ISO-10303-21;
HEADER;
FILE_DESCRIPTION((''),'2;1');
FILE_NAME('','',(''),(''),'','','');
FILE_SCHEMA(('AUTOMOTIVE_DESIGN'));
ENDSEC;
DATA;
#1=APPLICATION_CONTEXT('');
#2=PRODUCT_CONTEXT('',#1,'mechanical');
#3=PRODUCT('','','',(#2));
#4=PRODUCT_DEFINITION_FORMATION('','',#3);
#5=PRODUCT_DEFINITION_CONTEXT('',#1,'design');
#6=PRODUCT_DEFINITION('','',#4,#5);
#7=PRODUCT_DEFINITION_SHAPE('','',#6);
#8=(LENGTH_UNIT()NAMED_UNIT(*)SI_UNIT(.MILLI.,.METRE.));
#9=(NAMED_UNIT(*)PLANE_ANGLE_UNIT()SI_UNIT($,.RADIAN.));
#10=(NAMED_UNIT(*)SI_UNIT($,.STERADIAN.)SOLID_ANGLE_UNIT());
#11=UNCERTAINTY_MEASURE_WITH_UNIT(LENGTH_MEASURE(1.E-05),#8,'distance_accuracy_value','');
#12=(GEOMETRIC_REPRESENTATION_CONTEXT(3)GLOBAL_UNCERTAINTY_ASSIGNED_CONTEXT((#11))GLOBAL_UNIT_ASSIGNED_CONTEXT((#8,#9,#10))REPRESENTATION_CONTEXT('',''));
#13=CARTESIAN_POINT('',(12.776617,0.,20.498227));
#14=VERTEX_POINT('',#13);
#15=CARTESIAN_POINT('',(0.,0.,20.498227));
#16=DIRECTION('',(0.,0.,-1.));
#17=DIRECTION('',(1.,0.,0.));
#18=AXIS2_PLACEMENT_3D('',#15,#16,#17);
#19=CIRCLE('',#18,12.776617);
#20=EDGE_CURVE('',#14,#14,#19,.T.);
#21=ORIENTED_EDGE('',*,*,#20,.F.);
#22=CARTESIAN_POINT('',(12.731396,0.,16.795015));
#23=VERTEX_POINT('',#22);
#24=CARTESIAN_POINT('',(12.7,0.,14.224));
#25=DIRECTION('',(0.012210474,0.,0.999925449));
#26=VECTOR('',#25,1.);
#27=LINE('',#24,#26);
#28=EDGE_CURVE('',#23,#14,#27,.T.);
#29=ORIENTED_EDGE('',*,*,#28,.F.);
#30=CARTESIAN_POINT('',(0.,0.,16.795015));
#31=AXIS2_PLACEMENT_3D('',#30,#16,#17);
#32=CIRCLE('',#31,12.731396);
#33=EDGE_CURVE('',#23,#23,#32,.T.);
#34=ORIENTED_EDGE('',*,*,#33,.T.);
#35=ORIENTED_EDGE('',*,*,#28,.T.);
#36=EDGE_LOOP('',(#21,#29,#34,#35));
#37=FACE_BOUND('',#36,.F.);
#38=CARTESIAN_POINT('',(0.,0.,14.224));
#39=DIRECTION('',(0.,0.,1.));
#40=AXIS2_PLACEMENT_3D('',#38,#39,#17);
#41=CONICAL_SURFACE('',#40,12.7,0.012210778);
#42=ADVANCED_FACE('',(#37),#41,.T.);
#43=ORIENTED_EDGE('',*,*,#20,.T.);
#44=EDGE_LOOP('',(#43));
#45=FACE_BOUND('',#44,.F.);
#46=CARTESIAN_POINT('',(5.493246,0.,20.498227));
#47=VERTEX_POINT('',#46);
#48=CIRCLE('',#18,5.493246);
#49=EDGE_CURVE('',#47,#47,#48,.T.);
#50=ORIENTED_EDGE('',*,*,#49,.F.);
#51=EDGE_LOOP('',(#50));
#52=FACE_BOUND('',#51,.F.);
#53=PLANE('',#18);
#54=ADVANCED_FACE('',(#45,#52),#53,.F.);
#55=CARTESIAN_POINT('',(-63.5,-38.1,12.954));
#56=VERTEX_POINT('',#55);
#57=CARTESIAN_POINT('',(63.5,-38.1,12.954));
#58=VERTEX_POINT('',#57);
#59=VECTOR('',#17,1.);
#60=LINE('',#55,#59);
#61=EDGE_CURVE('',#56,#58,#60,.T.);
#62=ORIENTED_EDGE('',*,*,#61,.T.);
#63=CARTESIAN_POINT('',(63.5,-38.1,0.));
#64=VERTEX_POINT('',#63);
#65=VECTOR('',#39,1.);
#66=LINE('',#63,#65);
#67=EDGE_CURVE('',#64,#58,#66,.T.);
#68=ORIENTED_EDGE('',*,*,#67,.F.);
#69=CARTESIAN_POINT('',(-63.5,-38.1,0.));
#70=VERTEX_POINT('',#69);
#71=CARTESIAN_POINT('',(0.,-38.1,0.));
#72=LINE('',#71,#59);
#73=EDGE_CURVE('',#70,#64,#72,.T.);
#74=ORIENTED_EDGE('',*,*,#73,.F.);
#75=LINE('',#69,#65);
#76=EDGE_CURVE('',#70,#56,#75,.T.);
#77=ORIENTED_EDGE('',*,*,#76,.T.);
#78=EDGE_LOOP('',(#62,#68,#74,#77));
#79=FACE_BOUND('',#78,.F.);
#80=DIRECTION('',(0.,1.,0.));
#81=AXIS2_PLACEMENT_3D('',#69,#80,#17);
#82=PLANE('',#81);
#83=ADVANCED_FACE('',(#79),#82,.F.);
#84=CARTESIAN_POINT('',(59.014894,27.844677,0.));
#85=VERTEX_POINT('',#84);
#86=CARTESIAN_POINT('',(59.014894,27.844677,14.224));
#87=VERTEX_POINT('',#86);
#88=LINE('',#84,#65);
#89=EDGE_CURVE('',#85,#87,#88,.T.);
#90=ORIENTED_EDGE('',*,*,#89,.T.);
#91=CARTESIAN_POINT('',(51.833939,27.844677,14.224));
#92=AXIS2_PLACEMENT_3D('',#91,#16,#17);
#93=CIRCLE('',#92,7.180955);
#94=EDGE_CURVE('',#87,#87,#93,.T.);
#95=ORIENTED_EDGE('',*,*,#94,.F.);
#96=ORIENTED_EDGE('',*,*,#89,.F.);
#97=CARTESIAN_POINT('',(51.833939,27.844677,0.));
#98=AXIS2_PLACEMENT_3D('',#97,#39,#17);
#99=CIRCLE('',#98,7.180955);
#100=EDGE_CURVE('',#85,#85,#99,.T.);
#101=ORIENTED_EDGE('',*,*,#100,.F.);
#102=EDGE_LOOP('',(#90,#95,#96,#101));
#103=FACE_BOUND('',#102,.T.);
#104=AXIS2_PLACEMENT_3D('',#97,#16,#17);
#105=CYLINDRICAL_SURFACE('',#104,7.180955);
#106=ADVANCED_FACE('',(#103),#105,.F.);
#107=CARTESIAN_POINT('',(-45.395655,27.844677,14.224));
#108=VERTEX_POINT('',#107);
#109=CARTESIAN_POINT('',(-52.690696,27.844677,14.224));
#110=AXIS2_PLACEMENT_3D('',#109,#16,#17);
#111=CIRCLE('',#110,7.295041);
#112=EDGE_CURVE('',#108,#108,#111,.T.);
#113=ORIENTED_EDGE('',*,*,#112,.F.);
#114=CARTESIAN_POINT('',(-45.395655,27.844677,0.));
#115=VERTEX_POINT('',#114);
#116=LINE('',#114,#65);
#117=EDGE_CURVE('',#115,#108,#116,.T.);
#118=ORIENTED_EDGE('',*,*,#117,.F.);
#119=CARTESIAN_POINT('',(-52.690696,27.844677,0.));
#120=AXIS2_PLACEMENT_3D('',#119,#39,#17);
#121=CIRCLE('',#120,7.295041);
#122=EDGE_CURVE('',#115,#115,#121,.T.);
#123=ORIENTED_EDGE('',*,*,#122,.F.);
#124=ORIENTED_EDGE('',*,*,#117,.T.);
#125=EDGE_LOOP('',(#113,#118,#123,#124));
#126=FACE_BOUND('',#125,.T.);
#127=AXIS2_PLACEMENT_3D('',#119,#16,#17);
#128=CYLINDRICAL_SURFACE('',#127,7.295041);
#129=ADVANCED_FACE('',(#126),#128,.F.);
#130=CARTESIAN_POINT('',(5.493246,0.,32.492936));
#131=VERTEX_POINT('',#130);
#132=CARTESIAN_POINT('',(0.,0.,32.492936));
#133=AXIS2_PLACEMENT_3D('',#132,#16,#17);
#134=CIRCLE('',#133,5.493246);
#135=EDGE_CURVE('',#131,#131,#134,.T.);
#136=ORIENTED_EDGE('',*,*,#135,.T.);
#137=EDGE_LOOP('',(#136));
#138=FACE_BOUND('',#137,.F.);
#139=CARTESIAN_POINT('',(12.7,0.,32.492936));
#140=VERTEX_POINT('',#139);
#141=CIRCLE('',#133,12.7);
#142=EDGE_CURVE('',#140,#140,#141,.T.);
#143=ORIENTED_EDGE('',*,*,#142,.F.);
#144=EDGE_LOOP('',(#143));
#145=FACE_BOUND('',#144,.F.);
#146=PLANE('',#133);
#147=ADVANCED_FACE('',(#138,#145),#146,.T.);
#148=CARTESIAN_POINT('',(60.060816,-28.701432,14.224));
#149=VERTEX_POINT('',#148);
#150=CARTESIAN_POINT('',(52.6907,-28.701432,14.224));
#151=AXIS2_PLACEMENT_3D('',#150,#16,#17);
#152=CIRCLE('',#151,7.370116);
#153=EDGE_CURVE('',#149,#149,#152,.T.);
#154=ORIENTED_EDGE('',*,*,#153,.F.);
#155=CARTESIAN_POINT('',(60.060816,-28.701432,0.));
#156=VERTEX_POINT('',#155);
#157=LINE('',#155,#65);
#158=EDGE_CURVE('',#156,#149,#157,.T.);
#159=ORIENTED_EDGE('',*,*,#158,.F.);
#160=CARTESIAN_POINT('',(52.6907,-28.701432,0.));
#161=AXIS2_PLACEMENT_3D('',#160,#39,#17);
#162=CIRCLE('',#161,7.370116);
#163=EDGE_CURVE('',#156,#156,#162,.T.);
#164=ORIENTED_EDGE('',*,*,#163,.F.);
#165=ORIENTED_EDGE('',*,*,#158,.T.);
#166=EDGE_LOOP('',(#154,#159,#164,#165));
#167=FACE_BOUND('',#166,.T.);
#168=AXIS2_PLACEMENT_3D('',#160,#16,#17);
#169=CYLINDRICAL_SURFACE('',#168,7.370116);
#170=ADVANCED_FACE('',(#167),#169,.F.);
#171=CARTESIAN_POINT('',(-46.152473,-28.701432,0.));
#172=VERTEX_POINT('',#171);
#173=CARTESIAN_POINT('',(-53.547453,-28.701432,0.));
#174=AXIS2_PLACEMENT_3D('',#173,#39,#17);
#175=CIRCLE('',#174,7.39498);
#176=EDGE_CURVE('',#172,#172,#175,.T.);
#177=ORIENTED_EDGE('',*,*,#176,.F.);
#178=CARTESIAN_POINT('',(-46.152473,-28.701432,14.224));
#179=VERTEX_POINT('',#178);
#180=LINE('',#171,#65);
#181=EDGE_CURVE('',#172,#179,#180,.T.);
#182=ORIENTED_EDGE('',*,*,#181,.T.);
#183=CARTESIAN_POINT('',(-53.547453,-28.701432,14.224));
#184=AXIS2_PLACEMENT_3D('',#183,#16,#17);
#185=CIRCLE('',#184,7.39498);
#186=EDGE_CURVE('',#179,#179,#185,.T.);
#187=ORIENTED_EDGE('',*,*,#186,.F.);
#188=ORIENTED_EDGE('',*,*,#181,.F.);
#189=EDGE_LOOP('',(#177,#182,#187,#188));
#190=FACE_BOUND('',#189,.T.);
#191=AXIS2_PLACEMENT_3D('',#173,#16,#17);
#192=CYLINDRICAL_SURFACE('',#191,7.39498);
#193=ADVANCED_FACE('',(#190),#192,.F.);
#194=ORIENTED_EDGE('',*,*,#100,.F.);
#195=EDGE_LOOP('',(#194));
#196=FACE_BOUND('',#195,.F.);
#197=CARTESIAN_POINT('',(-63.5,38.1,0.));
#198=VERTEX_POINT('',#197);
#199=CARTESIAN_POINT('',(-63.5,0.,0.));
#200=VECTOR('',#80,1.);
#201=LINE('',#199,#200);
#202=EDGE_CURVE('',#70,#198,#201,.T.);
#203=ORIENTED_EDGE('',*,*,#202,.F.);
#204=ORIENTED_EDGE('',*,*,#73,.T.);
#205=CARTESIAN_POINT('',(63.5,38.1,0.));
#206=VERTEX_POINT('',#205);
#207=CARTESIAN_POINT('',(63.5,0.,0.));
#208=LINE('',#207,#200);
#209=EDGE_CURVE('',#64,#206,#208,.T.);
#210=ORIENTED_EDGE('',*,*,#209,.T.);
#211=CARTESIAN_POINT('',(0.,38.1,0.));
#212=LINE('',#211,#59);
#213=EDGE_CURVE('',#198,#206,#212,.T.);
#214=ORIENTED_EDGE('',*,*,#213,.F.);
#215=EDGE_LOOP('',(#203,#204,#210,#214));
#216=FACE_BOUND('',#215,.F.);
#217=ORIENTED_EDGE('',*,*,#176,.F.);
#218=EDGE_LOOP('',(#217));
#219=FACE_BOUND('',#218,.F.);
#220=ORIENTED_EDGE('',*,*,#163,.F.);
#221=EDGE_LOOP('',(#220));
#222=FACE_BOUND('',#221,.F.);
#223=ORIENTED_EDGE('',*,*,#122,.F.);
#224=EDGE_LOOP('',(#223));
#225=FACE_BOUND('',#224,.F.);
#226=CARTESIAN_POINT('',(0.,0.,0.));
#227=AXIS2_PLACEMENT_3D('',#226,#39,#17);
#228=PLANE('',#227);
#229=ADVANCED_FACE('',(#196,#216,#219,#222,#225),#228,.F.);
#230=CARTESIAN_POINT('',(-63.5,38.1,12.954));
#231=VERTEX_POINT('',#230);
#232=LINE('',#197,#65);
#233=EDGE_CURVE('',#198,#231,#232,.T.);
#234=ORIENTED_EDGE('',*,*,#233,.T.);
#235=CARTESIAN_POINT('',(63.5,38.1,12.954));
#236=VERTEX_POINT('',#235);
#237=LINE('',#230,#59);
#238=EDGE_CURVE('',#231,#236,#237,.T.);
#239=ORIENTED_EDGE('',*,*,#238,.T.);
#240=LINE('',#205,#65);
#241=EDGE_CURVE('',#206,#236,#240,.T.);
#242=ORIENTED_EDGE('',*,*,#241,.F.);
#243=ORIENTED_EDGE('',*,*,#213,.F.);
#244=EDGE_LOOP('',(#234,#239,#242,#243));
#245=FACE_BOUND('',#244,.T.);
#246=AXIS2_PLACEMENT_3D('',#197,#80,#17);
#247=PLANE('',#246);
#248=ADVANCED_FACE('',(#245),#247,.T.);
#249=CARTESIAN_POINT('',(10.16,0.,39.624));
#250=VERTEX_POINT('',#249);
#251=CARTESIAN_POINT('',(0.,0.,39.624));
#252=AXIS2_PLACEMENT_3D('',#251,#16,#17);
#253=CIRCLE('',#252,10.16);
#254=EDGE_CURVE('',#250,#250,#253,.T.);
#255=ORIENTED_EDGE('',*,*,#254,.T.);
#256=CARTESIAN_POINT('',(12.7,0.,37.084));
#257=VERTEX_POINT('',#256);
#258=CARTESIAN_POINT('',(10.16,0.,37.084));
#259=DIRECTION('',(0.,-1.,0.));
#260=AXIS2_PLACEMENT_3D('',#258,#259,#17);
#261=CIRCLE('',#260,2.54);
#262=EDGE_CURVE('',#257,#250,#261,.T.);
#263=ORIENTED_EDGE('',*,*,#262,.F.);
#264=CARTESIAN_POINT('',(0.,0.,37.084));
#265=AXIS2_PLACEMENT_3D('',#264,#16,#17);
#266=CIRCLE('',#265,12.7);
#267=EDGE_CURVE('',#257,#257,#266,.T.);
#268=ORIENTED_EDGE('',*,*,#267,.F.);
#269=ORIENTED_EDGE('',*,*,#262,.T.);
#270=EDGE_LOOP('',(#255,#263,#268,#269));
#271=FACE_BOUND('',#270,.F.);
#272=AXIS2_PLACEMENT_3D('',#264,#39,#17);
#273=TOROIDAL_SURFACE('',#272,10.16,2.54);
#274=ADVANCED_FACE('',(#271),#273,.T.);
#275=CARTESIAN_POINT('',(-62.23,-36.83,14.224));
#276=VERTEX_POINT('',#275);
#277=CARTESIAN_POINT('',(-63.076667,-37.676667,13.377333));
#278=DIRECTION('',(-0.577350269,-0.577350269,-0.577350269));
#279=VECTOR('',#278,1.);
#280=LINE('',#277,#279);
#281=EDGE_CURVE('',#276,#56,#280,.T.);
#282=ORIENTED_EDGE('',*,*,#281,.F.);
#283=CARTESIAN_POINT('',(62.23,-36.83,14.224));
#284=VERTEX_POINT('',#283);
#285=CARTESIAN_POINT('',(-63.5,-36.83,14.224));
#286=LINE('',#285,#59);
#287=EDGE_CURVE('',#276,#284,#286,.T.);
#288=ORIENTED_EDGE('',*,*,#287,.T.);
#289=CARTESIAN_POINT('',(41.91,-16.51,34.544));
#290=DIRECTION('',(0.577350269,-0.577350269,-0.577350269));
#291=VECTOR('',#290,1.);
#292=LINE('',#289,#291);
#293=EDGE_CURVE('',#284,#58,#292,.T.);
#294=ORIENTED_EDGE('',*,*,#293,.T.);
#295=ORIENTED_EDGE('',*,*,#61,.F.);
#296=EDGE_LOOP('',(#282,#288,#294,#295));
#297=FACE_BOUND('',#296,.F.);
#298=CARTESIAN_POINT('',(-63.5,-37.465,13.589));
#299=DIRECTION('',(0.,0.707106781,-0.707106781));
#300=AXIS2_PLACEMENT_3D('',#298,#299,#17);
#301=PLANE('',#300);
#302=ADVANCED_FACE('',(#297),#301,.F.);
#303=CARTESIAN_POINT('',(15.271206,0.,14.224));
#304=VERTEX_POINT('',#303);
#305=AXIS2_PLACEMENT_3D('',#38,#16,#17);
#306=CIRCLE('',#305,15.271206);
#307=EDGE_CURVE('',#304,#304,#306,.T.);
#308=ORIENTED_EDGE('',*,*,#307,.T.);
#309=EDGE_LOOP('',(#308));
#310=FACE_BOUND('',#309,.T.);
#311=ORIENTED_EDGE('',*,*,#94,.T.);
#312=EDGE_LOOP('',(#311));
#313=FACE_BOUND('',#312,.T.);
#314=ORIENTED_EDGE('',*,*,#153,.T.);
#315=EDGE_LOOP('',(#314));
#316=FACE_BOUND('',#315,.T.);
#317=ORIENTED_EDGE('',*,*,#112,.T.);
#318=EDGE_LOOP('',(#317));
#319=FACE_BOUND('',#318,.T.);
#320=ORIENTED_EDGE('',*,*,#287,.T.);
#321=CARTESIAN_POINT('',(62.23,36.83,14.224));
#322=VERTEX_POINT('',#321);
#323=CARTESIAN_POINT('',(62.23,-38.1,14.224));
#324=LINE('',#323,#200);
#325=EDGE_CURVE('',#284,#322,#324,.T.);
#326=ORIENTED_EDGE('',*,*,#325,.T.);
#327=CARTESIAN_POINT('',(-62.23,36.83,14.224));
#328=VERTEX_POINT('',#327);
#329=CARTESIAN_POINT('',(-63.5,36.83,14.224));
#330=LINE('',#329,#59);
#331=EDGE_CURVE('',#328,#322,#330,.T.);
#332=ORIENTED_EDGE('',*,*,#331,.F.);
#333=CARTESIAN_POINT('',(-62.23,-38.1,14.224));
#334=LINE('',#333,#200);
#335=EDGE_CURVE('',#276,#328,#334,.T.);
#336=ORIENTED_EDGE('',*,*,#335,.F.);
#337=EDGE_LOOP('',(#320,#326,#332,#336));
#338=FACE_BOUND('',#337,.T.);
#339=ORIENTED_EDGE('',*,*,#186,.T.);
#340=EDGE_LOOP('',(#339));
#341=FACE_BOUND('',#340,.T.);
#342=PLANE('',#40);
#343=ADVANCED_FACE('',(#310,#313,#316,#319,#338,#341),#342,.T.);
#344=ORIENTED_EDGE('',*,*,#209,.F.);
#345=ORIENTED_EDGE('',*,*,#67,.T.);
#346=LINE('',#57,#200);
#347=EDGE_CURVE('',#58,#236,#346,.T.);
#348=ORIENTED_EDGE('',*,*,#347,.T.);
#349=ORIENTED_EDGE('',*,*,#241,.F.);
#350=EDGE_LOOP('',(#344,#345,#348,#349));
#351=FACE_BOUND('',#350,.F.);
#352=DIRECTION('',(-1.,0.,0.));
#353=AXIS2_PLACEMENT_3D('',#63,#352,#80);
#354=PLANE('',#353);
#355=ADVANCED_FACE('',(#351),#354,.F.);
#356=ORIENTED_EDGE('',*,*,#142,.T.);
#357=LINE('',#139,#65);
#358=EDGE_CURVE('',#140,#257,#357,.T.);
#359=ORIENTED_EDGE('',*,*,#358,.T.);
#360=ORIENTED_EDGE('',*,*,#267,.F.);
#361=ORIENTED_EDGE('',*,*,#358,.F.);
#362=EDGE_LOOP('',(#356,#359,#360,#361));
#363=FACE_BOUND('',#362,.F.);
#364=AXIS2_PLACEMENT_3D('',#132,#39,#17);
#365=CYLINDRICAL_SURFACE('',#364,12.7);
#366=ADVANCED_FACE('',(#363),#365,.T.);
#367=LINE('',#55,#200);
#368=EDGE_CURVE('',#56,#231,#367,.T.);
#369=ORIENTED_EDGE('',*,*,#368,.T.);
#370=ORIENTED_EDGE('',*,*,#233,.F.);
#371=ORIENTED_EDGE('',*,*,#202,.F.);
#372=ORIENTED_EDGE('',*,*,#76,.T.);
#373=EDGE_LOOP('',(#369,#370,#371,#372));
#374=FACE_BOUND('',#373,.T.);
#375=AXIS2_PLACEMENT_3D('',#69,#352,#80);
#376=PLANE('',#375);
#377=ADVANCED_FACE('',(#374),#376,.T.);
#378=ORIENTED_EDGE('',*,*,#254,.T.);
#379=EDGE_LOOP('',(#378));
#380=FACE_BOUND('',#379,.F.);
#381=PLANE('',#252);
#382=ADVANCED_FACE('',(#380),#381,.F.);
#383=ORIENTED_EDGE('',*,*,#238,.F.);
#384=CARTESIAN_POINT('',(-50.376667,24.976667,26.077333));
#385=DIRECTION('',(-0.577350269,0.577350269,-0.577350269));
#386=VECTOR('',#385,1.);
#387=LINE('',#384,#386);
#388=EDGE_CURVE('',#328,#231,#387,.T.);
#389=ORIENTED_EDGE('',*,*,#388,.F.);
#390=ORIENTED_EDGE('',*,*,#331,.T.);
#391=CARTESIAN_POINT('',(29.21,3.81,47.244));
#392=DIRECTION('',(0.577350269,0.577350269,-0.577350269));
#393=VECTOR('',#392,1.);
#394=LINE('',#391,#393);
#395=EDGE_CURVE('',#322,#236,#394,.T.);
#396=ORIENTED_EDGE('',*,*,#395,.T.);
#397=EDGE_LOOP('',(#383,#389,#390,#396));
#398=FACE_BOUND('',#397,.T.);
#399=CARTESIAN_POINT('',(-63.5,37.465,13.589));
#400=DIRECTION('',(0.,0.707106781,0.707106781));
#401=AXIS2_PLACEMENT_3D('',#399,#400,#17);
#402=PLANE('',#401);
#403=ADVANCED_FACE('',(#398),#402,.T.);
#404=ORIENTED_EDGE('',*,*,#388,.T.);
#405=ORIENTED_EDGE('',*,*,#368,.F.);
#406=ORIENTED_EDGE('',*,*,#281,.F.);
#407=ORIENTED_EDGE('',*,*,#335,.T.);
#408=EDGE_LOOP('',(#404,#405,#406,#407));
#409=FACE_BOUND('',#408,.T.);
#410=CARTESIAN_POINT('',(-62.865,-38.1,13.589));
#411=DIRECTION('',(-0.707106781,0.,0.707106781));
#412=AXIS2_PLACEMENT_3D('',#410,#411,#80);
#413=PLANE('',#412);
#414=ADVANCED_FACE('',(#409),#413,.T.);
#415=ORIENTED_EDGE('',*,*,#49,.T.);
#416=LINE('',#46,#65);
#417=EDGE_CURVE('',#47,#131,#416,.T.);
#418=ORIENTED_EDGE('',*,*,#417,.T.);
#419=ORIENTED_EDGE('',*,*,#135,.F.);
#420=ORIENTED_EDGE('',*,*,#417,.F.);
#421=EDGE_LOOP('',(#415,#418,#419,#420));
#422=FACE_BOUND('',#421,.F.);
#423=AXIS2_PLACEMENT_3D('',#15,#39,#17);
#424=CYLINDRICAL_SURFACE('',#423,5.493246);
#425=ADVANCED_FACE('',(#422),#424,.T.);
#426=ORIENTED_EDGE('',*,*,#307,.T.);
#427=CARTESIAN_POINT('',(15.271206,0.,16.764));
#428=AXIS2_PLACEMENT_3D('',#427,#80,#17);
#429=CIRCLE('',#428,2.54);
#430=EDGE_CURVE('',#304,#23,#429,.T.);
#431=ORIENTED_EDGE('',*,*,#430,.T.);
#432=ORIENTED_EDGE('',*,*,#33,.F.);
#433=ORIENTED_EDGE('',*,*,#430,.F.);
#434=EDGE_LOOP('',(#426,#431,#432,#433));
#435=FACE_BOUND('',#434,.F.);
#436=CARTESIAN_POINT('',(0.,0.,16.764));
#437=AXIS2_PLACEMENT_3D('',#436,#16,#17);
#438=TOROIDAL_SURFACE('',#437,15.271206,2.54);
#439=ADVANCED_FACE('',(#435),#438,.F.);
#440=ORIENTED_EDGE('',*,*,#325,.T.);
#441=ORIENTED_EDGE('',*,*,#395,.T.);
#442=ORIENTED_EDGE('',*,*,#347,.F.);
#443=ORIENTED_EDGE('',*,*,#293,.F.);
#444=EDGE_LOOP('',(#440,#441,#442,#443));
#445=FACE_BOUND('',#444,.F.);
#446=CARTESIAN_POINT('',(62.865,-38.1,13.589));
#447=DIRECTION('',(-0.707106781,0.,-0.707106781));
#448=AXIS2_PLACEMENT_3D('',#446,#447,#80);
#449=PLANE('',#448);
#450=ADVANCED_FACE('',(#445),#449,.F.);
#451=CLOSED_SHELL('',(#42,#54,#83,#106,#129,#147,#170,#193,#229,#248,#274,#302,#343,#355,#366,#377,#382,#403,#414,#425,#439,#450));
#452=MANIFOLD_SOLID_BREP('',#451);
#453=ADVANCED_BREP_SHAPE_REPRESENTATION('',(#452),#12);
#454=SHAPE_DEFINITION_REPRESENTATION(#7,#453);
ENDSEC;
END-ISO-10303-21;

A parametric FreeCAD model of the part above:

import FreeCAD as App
import Part
import Sketcher

V = App.Vector
Q = App.Units.Quantity


def edges_at(feature, points):
    """Names of the edges that pass closest to the given points."""
    edges = feature.Shape.Edges
    near = lambda p: min(range(len(edges)), key=lambda i: edges[i].distToShape(Part.Vertex(*p))[0])
    return sorted({f"Edge{near(p) + 1}" for p in points})

doc = App.newDocument("Part")
body = doc.addObject("PartDesign::Body", "Body")

# Sketch on XY plane
sketch1 = body.newObject("Sketcher::SketchObject", "Sketch")
sketch1.AttachmentSupport = (doc.getObject("XY_Plane"), [""])
sketch1.MapMode = "FlatFace"
sketch1.addGeometry([
    Part.LineSegment(V(-63.5, 38.1, 0), V(-63.5, -38.1, 0)),
    Part.LineSegment(V(-63.5, -38.1, 0), V(63.5, -38.1, 0)),
    Part.LineSegment(V(63.5, -38.1, 0), V(63.5, 38.1, 0)),
    Part.LineSegment(V(63.5, 38.1, 0), V(-63.5, 38.1, 0)),
], False)
sketch1.addConstraint([
    Sketcher.Constraint("Coincident", 0, 2, 1, 1),
    Sketcher.Constraint("Coincident", 1, 2, 2, 1),
    Sketcher.Constraint("Coincident", 2, 2, 3, 1),
    Sketcher.Constraint("Coincident", 3, 2, 0, 1),
    Sketcher.Constraint("Vertical", 0),
    Sketcher.Constraint("Horizontal", 1),
    Sketcher.Constraint("Vertical", 2),
    Sketcher.Constraint("Horizontal", 3),
    Sketcher.Constraint("Symmetric", 0, 2, 2, 2, -1, 1),
    Sketcher.Constraint("DistanceX", 1, 1, 1, 2, Q("5 in")),
    Sketcher.Constraint("DistanceY", 0, 2, 0, 1, Q("3 in")),
])
pad1 = body.newObject("PartDesign::Pad", "Pad")
pad1.Profile = sketch1
pad1.Length = Q("0.56 in")

# Sketch on XY plane
sketch2 = body.newObject("Sketcher::SketchObject", "Sketch001")
sketch2.AttachmentSupport = (doc.getObject("XY_Plane"), [""])
sketch2.MapMode = "FlatFace"
sketch2.addGeometry([
    Part.Circle(V(-52.690696, 27.844677, 0), V(0, 0, 1), 7.295041),
    Part.Circle(V(51.833939, 27.844677, 0), V(0, 0, 1), 7.180955),
    Part.Circle(V(52.6907, -28.701432, 0), V(0, 0, 1), 7.370116),
    Part.Circle(V(-53.547453, -28.701432, 0), V(0, 0, 1), 7.39498),
], False)
sketch2.addConstraint([
    Sketcher.Constraint("Horizontal", 0, 3, 1, 3),
    Sketcher.Constraint("Horizontal", 2, 3, 3, 3),
    Sketcher.Constraint("Diameter", 1, 14.36191),
    Sketcher.Constraint("Diameter", 3, 14.78996),
    Sketcher.Constraint("Diameter", 0, 14.590082),
    Sketcher.Constraint("Diameter", 2, 14.740232),
    Sketcher.Constraint("DistanceX", -1, 1, 2, 3, 52.6907),
    Sketcher.Constraint("DistanceX", -1, 1, 1, 3, 51.833939),
    Sketcher.Constraint("DistanceY", 2, 3, 1, 3, 56.546109),
    Sketcher.Constraint("DistanceX", 0, 3, -1, 1, 52.690696),
    Sketcher.Constraint("DistanceY", -1, 1, 0, 3, 27.844677),
    Sketcher.Constraint("DistanceX", 3, 3, -1, 1, 53.547453),
])
pocket1 = body.newObject("PartDesign::Pocket", "Pocket")
pocket1.Profile = sketch2
pocket1.Length = Q("1.1 in")
pocket1.Reversed = True

# Sketch on XZ plane
sketch3 = body.newObject("Sketcher::SketchObject", "Sketch002")
sketch3.AttachmentSupport = (doc.getObject("XZ_Plane"), [""])
sketch3.MapMode = "FlatFace"
sketch3.addGeometry([
    Part.LineSegment(V(12.7, 39.624, 0), V(0, 39.624, 0)),  # 0
    Part.LineSegment(V(0, 39.624, 0), V(0, 14.224, 0)),  # 1
    Part.LineSegment(V(0, 14.224, 0), V(12.7, 14.224, 0)),  # 2
    Part.LineSegment(V(12.7, 14.224, 0), V(12.776617, 20.498227, 0)),  # 3
    Part.LineSegment(V(12.776617, 20.498227, 0), V(5.493246, 20.498227, 0)),  # 4
    Part.LineSegment(V(5.493246, 20.498227, 0), V(5.493246, 32.492936, 0)),  # 5
    Part.LineSegment(V(5.493246, 32.492936, 0), V(12.7, 32.492936, 0)),  # 6
    Part.LineSegment(V(12.7, 32.492936, 0), V(12.7, 39.624, 0)),  # 7
], False)
sketch3.addConstraint([
    Sketcher.Constraint("Coincident", 0, 2, 1, 1),
    Sketcher.Constraint("Coincident", 1, 2, 2, 1),
    Sketcher.Constraint("Coincident", 2, 2, 3, 1),
    Sketcher.Constraint("Coincident", 3, 2, 4, 1),
    Sketcher.Constraint("Coincident", 4, 2, 5, 1),
    Sketcher.Constraint("Coincident", 5, 2, 6, 1),
    Sketcher.Constraint("Coincident", 6, 2, 7, 1),
    Sketcher.Constraint("Coincident", 7, 2, 0, 1),
    Sketcher.Constraint("Horizontal", 0),
    Sketcher.Constraint("Vertical", 1),
    Sketcher.Constraint("Horizontal", 2),
    Sketcher.Constraint("Horizontal", 4),
    Sketcher.Constraint("Vertical", 5),
    Sketcher.Constraint("Horizontal", 6),
    Sketcher.Constraint("Vertical", 7),
    Sketcher.Constraint("PointOnObject", 0, 2, -2),
    Sketcher.Constraint("Vertical", 2, 2, 6, 2),
    Sketcher.Constraint("DistanceY", 1, 2, 1, 1, Q("1 in")),
    Sketcher.Constraint("DistanceX", 0, 2, 0, 1, Q("0.5 in")),
    Sketcher.Constraint("DistanceY", -1, 1, 0, 2, Q("1.56 in")),
    Sketcher.Constraint("DistanceX", 4, 2, 4, 1, 7.283371),
    Sketcher.Constraint("DistanceY", 5, 1, 5, 2, 11.994709),
    Sketcher.Constraint("DistanceX", 6, 1, 6, 2, 7.206754),
    Sketcher.Constraint("DistanceY", 7, 1, 7, 2, 7.131064),
])
revolution = body.newObject("PartDesign::Revolution", "Revolution")
revolution.Profile = sketch3
revolution.ReferenceAxis = (sketch3, ["V_Axis"])
revolution.Angle = 360
doc.recompute()

fillet = body.newObject("PartDesign::Fillet", "Fillet")
fillet.Base = (revolution, edges_at(revolution, [(-12.7, 0, 39.624), (-12.7, 0, 14.224)]))
fillet.Radius = Q("0.1 in")
doc.recompute()

chamfer = body.newObject("PartDesign::Chamfer", "Chamfer")
chamfer.Base = (fillet, edges_at(fillet, [
    (0, -38.1, 14.224),
    (63.5, 0, 14.224),
    (0, 38.1, 14.224),
    (-63.5, 0, 14.224),
]))
chamfer.Size = Q("0.05 in")

doc.recompute()
